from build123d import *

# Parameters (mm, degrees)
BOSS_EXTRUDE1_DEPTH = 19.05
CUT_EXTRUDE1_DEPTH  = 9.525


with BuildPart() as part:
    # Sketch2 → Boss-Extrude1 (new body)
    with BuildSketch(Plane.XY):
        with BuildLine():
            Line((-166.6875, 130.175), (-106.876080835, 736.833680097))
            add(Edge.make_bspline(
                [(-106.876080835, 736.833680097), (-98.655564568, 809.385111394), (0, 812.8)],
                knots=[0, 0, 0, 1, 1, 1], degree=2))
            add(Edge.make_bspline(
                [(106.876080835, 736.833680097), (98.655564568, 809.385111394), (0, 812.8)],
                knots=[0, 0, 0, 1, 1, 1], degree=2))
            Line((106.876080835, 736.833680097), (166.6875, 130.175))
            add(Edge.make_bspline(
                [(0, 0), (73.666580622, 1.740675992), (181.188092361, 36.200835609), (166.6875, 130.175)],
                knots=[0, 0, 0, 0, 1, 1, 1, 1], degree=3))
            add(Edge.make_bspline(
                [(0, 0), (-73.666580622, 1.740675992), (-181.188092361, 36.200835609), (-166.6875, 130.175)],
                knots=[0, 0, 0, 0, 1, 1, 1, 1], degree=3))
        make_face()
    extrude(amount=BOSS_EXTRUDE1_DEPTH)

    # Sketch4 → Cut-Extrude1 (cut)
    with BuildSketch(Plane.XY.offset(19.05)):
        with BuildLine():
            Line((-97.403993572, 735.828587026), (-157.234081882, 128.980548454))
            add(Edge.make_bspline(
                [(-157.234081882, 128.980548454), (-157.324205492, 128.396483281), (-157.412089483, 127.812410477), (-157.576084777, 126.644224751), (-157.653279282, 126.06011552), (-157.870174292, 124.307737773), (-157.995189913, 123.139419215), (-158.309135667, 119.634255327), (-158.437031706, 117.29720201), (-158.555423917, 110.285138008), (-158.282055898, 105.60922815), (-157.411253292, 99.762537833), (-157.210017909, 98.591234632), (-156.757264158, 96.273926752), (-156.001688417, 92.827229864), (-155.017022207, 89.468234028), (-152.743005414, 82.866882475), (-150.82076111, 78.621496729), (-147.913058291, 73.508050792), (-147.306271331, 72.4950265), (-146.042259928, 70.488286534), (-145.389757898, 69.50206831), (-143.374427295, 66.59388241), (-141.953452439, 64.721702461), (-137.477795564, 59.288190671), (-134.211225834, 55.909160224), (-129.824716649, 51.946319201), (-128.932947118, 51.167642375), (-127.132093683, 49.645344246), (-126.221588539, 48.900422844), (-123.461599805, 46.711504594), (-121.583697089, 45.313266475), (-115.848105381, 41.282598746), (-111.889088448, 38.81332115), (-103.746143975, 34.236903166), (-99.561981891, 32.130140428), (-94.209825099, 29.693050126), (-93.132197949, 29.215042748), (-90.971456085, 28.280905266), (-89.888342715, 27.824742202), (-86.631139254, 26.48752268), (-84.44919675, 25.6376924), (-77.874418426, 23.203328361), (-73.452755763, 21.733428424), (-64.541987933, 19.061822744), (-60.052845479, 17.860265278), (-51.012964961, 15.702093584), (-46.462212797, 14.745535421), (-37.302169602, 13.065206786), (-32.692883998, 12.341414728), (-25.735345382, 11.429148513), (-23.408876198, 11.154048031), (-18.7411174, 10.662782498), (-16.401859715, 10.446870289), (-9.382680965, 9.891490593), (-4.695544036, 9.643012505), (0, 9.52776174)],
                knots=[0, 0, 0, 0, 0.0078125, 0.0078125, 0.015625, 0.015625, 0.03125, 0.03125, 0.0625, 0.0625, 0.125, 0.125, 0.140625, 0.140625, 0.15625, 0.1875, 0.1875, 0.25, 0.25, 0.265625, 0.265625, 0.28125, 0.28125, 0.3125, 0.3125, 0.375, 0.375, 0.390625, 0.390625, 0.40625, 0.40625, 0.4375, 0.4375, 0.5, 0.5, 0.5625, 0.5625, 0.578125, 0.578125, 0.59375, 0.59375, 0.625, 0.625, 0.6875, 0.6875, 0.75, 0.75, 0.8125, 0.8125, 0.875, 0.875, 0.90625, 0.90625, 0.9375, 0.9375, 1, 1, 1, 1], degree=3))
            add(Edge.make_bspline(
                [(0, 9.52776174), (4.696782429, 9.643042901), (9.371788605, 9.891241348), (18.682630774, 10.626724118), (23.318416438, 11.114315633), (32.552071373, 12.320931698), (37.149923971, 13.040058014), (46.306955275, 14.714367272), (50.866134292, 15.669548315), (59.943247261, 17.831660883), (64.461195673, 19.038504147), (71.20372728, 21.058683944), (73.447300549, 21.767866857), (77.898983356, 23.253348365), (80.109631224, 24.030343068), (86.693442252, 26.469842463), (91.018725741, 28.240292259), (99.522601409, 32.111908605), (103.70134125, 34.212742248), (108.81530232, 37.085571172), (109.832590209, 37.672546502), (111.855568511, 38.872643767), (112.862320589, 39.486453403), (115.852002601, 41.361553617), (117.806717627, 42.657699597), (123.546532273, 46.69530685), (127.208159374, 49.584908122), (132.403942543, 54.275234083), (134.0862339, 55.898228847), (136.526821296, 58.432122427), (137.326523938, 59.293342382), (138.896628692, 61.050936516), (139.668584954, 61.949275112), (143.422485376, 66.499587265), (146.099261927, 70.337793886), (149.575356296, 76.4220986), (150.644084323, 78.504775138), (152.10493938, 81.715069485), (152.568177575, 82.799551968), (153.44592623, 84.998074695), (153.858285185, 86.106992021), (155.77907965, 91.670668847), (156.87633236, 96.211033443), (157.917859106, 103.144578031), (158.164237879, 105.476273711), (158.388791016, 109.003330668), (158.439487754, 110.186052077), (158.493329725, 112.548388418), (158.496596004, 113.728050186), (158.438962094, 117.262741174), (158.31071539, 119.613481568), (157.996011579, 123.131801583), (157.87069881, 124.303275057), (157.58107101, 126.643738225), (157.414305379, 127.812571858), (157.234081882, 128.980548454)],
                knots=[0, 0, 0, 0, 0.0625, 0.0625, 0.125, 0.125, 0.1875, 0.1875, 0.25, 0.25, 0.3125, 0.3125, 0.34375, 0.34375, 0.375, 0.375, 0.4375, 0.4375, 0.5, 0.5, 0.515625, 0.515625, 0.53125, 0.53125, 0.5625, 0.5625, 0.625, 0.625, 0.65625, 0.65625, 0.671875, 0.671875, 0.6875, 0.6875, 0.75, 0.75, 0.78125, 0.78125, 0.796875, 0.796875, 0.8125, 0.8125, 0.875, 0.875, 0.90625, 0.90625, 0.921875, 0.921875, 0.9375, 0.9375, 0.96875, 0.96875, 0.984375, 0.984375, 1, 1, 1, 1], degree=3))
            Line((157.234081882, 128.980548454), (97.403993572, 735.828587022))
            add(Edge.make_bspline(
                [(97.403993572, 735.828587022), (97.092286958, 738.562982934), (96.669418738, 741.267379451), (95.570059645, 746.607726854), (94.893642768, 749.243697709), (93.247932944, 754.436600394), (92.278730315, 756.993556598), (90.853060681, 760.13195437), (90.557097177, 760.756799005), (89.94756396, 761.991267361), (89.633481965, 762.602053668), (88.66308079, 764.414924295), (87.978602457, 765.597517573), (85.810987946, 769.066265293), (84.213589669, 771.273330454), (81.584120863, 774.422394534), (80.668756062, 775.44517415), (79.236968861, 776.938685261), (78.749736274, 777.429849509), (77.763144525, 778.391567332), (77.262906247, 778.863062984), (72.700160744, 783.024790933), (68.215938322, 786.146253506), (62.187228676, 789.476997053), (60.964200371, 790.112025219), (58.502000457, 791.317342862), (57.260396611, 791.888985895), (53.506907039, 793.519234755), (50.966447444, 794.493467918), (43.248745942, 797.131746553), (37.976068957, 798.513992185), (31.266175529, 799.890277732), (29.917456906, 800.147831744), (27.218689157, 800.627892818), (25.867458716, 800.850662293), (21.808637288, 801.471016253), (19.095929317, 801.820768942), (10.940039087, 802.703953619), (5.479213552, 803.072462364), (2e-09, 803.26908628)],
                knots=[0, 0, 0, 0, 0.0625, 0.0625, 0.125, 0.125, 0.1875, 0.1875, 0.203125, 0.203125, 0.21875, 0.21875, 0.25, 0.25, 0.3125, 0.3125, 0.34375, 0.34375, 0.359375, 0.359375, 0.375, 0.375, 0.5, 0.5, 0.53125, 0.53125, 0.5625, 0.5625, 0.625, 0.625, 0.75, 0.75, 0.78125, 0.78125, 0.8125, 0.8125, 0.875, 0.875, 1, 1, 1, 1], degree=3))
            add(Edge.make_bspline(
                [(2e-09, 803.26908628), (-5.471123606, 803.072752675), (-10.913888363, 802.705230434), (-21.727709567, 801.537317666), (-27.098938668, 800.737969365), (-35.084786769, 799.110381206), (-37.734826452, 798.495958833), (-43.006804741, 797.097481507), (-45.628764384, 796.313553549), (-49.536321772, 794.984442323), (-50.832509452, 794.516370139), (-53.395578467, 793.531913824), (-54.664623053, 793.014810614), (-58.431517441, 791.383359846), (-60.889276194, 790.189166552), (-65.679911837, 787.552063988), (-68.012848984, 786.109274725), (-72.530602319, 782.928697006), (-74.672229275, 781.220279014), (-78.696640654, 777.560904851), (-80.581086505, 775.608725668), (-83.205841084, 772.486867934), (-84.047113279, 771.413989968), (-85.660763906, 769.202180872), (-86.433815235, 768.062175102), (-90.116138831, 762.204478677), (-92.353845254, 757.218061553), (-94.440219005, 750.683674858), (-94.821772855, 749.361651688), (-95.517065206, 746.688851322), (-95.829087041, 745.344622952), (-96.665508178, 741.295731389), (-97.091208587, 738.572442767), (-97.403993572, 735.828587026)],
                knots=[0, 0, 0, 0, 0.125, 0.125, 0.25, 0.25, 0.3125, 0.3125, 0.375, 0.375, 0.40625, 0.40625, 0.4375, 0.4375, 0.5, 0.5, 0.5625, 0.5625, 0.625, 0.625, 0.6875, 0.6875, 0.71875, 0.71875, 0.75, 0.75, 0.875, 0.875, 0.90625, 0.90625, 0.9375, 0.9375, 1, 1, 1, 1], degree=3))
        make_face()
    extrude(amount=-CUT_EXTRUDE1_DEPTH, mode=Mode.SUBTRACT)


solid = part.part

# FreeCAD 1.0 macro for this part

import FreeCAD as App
import Part
import Sketcher

V = App.Vector
Q = App.Units.Quantity

doc = App.newDocument("Part")
body = doc.addObject("PartDesign::Body", "Body")

sketch1 = doc.addObject("Sketcher::SketchObject", "Sketch")
body.addObject(sketch1)
sketch1.AttachmentSupport = (doc.XY_Plane, [""])
sketch1.MapMode = "FlatFace"
sketch1.addGeometry(Part.LineSegment(V(-106.876081, 736.83368, 0), V(-166.6875, 130.175, 0)), False)
sketch1.addGeometry(Part.BSplineCurve([V(0, 0, 0), V(-73.666581, 1.740676, 0), V(-181.188092, 36.200836, 0), V(-166.6875, 130.175, 0)], [4, 4], [0, 1], False, 3, [1, 1, 1, 1], False), False)
sketch1.addGeometry(Part.BSplineCurve([V(0, 0, 0), V(73.666581, 1.740676, 0), V(181.188092, 36.200836, 0), V(166.6875, 130.175, 0)], [4, 4], [0, 1], False, 3, [1, 1, 1, 1], False), False)
sketch1.addGeometry(Part.LineSegment(V(166.6875, 130.175, 0), V(106.876081, 736.83368, 0)), False)
sketch1.addGeometry(Part.BSplineCurve([V(106.876081, 736.83368, 0), V(98.655565, 809.385111, 0), V(0, 812.8, 0)], [3, 3], [0, 1], False, 2, [1, 1, 1], False), False)
sketch1.addGeometry(Part.BSplineCurve([V(-106.876081, 736.83368, 0), V(-98.655565, 809.385111, 0), V(0, 812.8, 0)], [3, 3], [0, 1], False, 2, [1, 1, 1], False), False)
sketch1.addConstraint(Sketcher.Constraint("Block", 1))
sketch1.addConstraint(Sketcher.Constraint("Block", 2))
sketch1.addConstraint(Sketcher.Constraint("Block", 4))
sketch1.addConstraint(Sketcher.Constraint("Block", 5))
sketch1.addConstraint(Sketcher.Constraint("Coincident", 0, 2, 1, 2))
sketch1.addConstraint(Sketcher.Constraint("Coincident", 2, 2, 3, 1))
sketch1.addConstraint(Sketcher.Constraint("Coincident", 3, 2, 4, 1))
sketch1.addConstraint(Sketcher.Constraint("Coincident", 5, 1, 0, 1))
pad1 = doc.addObject("PartDesign::Pad", "Pad")
body.addObject(pad1)
pad1.Profile = sketch1
pad1.Length = Q("0.75 in")

sketch2 = doc.addObject("Sketcher::SketchObject", "Sketch001")
body.addObject(sketch2)
sketch2.AttachmentSupport = (doc.XY_Plane, [""])
sketch2.MapMode = "FlatFace"
sketch2.AttachmentOffset = App.Placement(V(0, 0, 0.75 * 25.4), App.Rotation())
sketch2.addGeometry(Part.LineSegment(V(-97.403994, 735.828587, 0), V(-157.234082, 128.980548, 0)), False)
sketch2.addGeometry(Part.BSplineCurve([V(-157.234082, 128.980548, 0), V(-157.324205, 128.396483, 0), V(-157.412089, 127.81241, 0), V(-157.576085, 126.644225, 0), V(-157.653279, 126.060116, 0), V(-157.870174, 124.307738, 0), V(-157.99519, 123.139419, 0), V(-158.309136, 119.634255, 0), V(-158.437032, 117.297202, 0), V(-158.555424, 110.285138, 0), V(-158.282056, 105.609228, 0), V(-157.411253, 99.762538, 0), V(-157.210018, 98.591235, 0), V(-156.757264, 96.273927, 0), V(-156.001688, 92.82723, 0), V(-155.017022, 89.468234, 0), V(-152.743005, 82.866882, 0), V(-150.820761, 78.621497, 0), V(-147.913058, 73.508051, 0), V(-147.306271, 72.495026, 0), V(-146.04226, 70.488287, 0), V(-145.389758, 69.502068, 0), V(-143.374427, 66.593882, 0), V(-141.953452, 64.721702, 0), V(-137.477796, 59.288191, 0), V(-134.211226, 55.90916, 0), V(-129.824717, 51.946319, 0), V(-128.932947, 51.167642, 0), V(-127.132094, 49.645344, 0), V(-126.221589, 48.900423, 0), V(-123.4616, 46.711505, 0), V(-121.583697, 45.313266, 0), V(-115.848105, 41.282599, 0), V(-111.889088, 38.813321, 0), V(-103.746144, 34.236903, 0), V(-99.561982, 32.13014, 0), V(-94.209825, 29.69305, 0), V(-93.132198, 29.215043, 0), V(-90.971456, 28.280905, 0), V(-89.888343, 27.824742, 0), V(-86.631139, 26.487523, 0), V(-84.449197, 25.637692, 0), V(-77.874418, 23.203328, 0), V(-73.452756, 21.733428, 0), V(-64.541988, 19.061823, 0), V(-60.052845, 17.860265, 0), V(-51.012965, 15.702094, 0), V(-46.462213, 14.745535, 0), V(-37.30217, 13.065207, 0), V(-32.692884, 12.341415, 0), V(-25.735345, 11.429149, 0), V(-23.408876, 11.154048, 0), V(-18.741117, 10.662782, 0), V(-16.40186, 10.44687, 0), V(-9.382681, 9.891491, 0), V(-4.695544, 9.643013, 0), V(0, 9.527762, 0)], [4, 2, 2, 2, 2, 2, 2, 1, 2, 2, 2, 2, 2, 2, 2, 2, 2, 2, 2, 2, 2, 2, 2, 2, 2, 2, 2, 2, 4], [0, 0.0078125, 0.015625, 0.03125, 0.0625, 0.125, 0.140625, 0.15625, 0.1875, 0.25, 0.265625, 0.28125, 0.3125, 0.375, 0.390625, 0.40625, 0.4375, 0.5, 0.5625, 0.578125, 0.59375, 0.625, 0.6875, 0.75, 0.8125, 0.875, 0.90625, 0.9375, 1], False, 3, [1, 1, 1, 1, 1, 1, 1, 1, 1, 1, 1, 1, 1, 1, 1, 1, 1, 1, 1, 1, 1, 1, 1, 1, 1, 1, 1, 1, 1, 1, 1, 1, 1, 1, 1, 1, 1, 1, 1, 1, 1, 1, 1, 1, 1, 1, 1, 1, 1, 1, 1, 1, 1, 1, 1, 1, 1], False), False)
sketch2.addGeometry(Part.BSplineCurve([V(0, 9.527762, 0), V(4.696782, 9.643043, 0), V(9.371789, 9.891241, 0), V(18.682631, 10.626724, 0), V(23.318416, 11.114316, 0), V(32.552071, 12.320932, 0), V(37.149924, 13.040058, 0), V(46.306955, 14.714367, 0), V(50.866134, 15.669548, 0), V(59.943247, 17.831661, 0), V(64.461196, 19.038504, 0), V(71.203727, 21.058684, 0), V(73.447301, 21.767867, 0), V(77.898983, 23.253348, 0), V(80.109631, 24.030343, 0), V(86.693442, 26.469842, 0), V(91.018726, 28.240292, 0), V(99.522601, 32.111909, 0), V(103.701341, 34.212742, 0), V(108.815302, 37.085571, 0), V(109.83259, 37.672547, 0), V(111.855569, 38.872644, 0), V(112.862321, 39.486453, 0), V(115.852003, 41.361554, 0), V(117.806718, 42.6577, 0), V(123.546532, 46.695307, 0), V(127.208159, 49.584908, 0), V(132.403943, 54.275234, 0), V(134.086234, 55.898229, 0), V(136.526821, 58.432122, 0), V(137.326524, 59.293342, 0), V(138.896629, 61.050937, 0), V(139.668585, 61.949275, 0), V(143.422485, 66.499587, 0), V(146.099262, 70.337794, 0), V(149.575356, 76.422099, 0), V(150.644084, 78.504775, 0), V(152.104939, 81.715069, 0), V(152.568178, 82.799552, 0), V(153.445926, 84.998075, 0), V(153.858285, 86.106992, 0), V(155.77908, 91.670669, 0), V(156.876332, 96.211033, 0), V(157.917859, 103.144578, 0), V(158.164238, 105.476274, 0), V(158.388791, 109.003331, 0), V(158.439488, 110.186052, 0), V(158.49333, 112.548388, 0), V(158.496596, 113.72805, 0), V(158.438962, 117.262741, 0), V(158.310715, 119.613482, 0), V(157.996012, 123.131802, 0), V(157.870699, 124.303275, 0), V(157.581071, 126.643738, 0), V(157.414305, 127.812572, 0), V(157.234082, 128.980548, 0)], [4, 2, 2, 2, 2, 2, 2, 2, 2, 2, 2, 2, 2, 2, 2, 2, 2, 2, 2, 2, 2, 2, 2, 2, 2, 2, 2, 4], [0, 0.0625, 0.125, 0.1875, 0.25, 0.3125, 0.34375, 0.375, 0.4375, 0.5, 0.515625, 0.53125, 0.5625, 0.625, 0.65625, 0.671875, 0.6875, 0.75, 0.78125, 0.796875, 0.8125, 0.875, 0.90625, 0.921875, 0.9375, 0.96875, 0.984375, 1], False, 3, [1, 1, 1, 1, 1, 1, 1, 1, 1, 1, 1, 1, 1, 1, 1, 1, 1, 1, 1, 1, 1, 1, 1, 1, 1, 1, 1, 1, 1, 1, 1, 1, 1, 1, 1, 1, 1, 1, 1, 1, 1, 1, 1, 1, 1, 1, 1, 1, 1, 1, 1, 1, 1, 1, 1, 1], False), False)
sketch2.addGeometry(Part.LineSegment(V(157.234082, 128.980548, 0), V(97.403994, 735.828587, 0)), False)
sketch2.addGeometry(Part.BSplineCurve([V(97.403994, 735.828587, 0), V(97.092287, 738.562983, 0), V(96.669419, 741.267379, 0), V(95.57006, 746.607727, 0), V(94.893643, 749.243698, 0), V(93.247933, 754.4366, 0), V(92.27873, 756.993557, 0), V(90.853061, 760.131954, 0), V(90.557097, 760.756799, 0), V(89.947564, 761.991267, 0), V(89.633482, 762.602054, 0), V(88.663081, 764.414924, 0), V(87.978602, 765.597518, 0), V(85.810988, 769.066265, 0), V(84.21359, 771.27333, 0), V(81.584121, 774.422395, 0), V(80.668756, 775.445174, 0), V(79.236969, 776.938685, 0), V(78.749736, 777.42985, 0), V(77.763145, 778.391567, 0), V(77.262906, 778.863063, 0), V(72.700161, 783.024791, 0), V(68.215938, 786.146254, 0), V(62.187229, 789.476997, 0), V(60.9642, 790.112025, 0), V(58.502, 791.317343, 0), V(57.260397, 791.888986, 0), V(53.506907, 793.519235, 0), V(50.966447, 794.493468, 0), V(43.248746, 797.131747, 0), V(37.976069, 798.513992, 0), V(31.266176, 799.890278, 0), V(29.917457, 800.147832, 0), V(27.218689, 800.627893, 0), V(25.867459, 800.850662, 0), V(21.808637, 801.471016, 0), V(19.095929, 801.820769, 0), V(10.940039, 802.703954, 0), V(5.479214, 803.072462, 0), V(0, 803.269086, 0)], [4, 2, 2, 2, 2, 2, 2, 2, 2, 2, 2, 2, 2, 2, 2, 2, 2, 2, 2, 4], [0, 0.0625, 0.125, 0.1875, 0.203125, 0.21875, 0.25, 0.3125, 0.34375, 0.359375, 0.375, 0.5, 0.53125, 0.5625, 0.625, 0.75, 0.78125, 0.8125, 0.875, 1], False, 3, [1, 1, 1, 1, 1, 1, 1, 1, 1, 1, 1, 1, 1, 1, 1, 1, 1, 1, 1, 1, 1, 1, 1, 1, 1, 1, 1, 1, 1, 1, 1, 1, 1, 1, 1, 1, 1, 1, 1, 1], False), False)
sketch2.addGeometry(Part.BSplineCurve([V(0, 803.269086, 0), V(-5.471124, 803.072753, 0), V(-10.913888, 802.70523, 0), V(-21.72771, 801.537318, 0), V(-27.098939, 800.737969, 0), V(-35.084787, 799.110381, 0), V(-37.734826, 798.495959, 0), V(-43.006805, 797.097482, 0), V(-45.628764, 796.313554, 0), V(-49.536322, 794.984442, 0), V(-50.832509, 794.51637, 0), V(-53.395578, 793.531914, 0), V(-54.664623, 793.014811, 0), V(-58.431517, 791.38336, 0), V(-60.889276, 790.189167, 0), V(-65.679912, 787.552064, 0), V(-68.012849, 786.109275, 0), V(-72.530602, 782.928697, 0), V(-74.672229, 781.220279, 0), V(-78.696641, 777.560905, 0), V(-80.581087, 775.608726, 0), V(-83.205841, 772.486868, 0), V(-84.047113, 771.41399, 0), V(-85.660764, 769.202181, 0), V(-86.433815, 768.062175, 0), V(-90.116139, 762.204479, 0), V(-92.353845, 757.218062, 0), V(-94.440219, 750.683675, 0), V(-94.821773, 749.361652, 0), V(-95.517065, 746.688851, 0), V(-95.829087, 745.344623, 0), V(-96.665508, 741.295731, 0), V(-97.091209, 738.572443, 0), V(-97.403994, 735.828587, 0)], [4, 2, 2, 2, 2, 2, 2, 2, 2, 2, 2, 2, 2, 2, 2, 2, 4], [0, 0.125, 0.25, 0.3125, 0.375, 0.40625, 0.4375, 0.5, 0.5625, 0.625, 0.6875, 0.71875, 0.75, 0.875, 0.90625, 0.9375, 1], False, 3, [1, 1, 1, 1, 1, 1, 1, 1, 1, 1, 1, 1, 1, 1, 1, 1, 1, 1, 1, 1, 1, 1, 1, 1, 1, 1, 1, 1, 1, 1, 1, 1, 1, 1], False), False)
sketch2.addConstraint(Sketcher.Constraint("Block", 1))
sketch2.addConstraint(Sketcher.Constraint("Block", 2))
sketch2.addConstraint(Sketcher.Constraint("Block", 4))
sketch2.addConstraint(Sketcher.Constraint("Block", 5))
sketch2.addConstraint(Sketcher.Constraint("Coincident", 0, 2, 1, 1))
sketch2.addConstraint(Sketcher.Constraint("Coincident", 2, 2, 3, 1))
sketch2.addConstraint(Sketcher.Constraint("Coincident", 3, 2, 4, 1))
sketch2.addConstraint(Sketcher.Constraint("Coincident", 5, 2, 0, 1))
pocket1 = doc.addObject("PartDesign::Pocket", "Pocket")
body.addObject(pocket1)
pocket1.Profile = sketch2
pocket1.Length = Q("0.375 in")

doc.recompute()
